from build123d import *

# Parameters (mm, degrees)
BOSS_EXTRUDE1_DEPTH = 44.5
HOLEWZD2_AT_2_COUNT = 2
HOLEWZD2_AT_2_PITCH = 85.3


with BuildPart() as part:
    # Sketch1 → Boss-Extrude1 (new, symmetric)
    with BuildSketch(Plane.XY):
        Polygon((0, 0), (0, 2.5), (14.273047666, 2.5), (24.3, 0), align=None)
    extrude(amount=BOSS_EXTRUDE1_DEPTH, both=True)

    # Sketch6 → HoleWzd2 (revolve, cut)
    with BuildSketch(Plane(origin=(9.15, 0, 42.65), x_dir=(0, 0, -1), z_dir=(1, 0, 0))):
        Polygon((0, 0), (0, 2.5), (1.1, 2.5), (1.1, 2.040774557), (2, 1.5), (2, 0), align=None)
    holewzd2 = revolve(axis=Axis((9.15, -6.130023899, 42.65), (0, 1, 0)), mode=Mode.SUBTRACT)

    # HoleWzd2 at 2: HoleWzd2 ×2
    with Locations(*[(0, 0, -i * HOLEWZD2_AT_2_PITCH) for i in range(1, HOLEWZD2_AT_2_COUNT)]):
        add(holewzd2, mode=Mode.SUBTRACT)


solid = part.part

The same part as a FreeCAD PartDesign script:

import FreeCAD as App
import Part
import Sketcher
Q = App.Units.Quantity


def add_polygon(sketch, points):
    """Adds a closed chain of lines whose ends are joined by coincident constraints."""
    first, n = sketch.GeometryCount, len(points)
    for a, b in zip(points, points[1:] + points[:1]):
        sketch.addGeometry(Part.LineSegment(App.Vector(*a, 0), App.Vector(*b, 0)), False)
    for i in range(n):
        sketch.addConstraint(Sketcher.Constraint("Coincident", first + i, 2, first + (i + 1) % n, 1))

doc = App.newDocument("Part")
body = doc.addObject("PartDesign::Body", "Body")

# Sketch on XY plane
sketch1 = body.newObject("Sketcher::SketchObject", "Sketch")
sketch1.AttachmentSupport = (doc.getObject("XY_Plane"), [""])
sketch1.MapMode = "FlatFace"
add_polygon(sketch1, [(0, 2.5), (0, 0), (24.3, 0), (14.3, 2.5)])  # lines 0-3
sketch1.addConstraint([
    Sketcher.Constraint("Vertical", 0),
    Sketcher.Constraint("Horizontal", 1),
    Sketcher.Constraint("Horizontal", 3),
    Sketcher.Constraint("Coincident", 0, 2, -1, 1),
    Sketcher.Constraint("Angle", 2, Q("166 deg")),
    Sketcher.Constraint("DistanceX", 1, 1, 1, 2, Q("24.3 mm")),
    Sketcher.Constraint("DistanceY", 0, 2, 0, 1, Q("2.5 mm")),
])
pad1 = body.newObject("PartDesign::Pad", "Pad")
pad1.Profile = sketch1
pad1.Length = 89
pad1.Midplane = True

# Sketch on YZ plane
sketch2 = body.newObject("Sketcher::SketchObject", "Sketch001")
sketch2.AttachmentSupport = (doc.getObject("YZ_Plane"), [""])
sketch2.MapMode = "FlatFace"
sketch2.AttachmentOffset = App.Placement(App.Vector(0, 0, 9.15), App.Rotation())
add_polygon(sketch2, [(2.5, 42.65), (0, 42.65), (0, 40.65), (1.5, 40.65), (2.04, 41.55), (2.5, 41.55)])  # lines 0-5
sketch2.addGeometry(Part.LineSegment(App.Vector(0, 42.65, 0), App.Vector(2.5, 42.65, 0)), True)  # axis
sketch2.addConstraint([
    Sketcher.Constraint("Horizontal", 0),
    Sketcher.Constraint("Vertical", 1),
    Sketcher.Constraint("Horizontal", 2),
    Sketcher.Constraint("Horizontal", 4),
    Sketcher.Constraint("Vertical", 5),
    Sketcher.Constraint("Horizontal", 6),
    Sketcher.Constraint("Coincident", 6, 1, 0, 2),
    Sketcher.Constraint("PointOnObject", 0, 2, -2),
    Sketcher.Constraint("Vertical", 4, 2, 6, 2),
    Sketcher.Constraint("DistanceY", 1, 2, 1, 1, Q("2 mm")),
    Sketcher.Constraint("Angle", 3, Q("59 deg")),
    Sketcher.Constraint("DistanceX", 0, 2, 0, 1, Q("2.5 mm")),
    Sketcher.Constraint("DistanceX", 2, 1, 2, 2, Q("1.5 mm")),
    Sketcher.Constraint("DistanceY", 5, 1, 5, 2, Q("1.1 mm")),
    Sketcher.Constraint("DistanceY", -1, 1, 0, 2, Q("42.65 mm")),
])
groove = body.newObject("PartDesign::Groove", "Groove")
groove.Profile = sketch2
groove.ReferenceAxis = (sketch2, ["Axis0"])
groove.Angle = 360
doc.recompute()

linearpattern = body.newObject("PartDesign::LinearPattern", "LinearPattern")
linearpattern.Originals = [groove]
linearpattern.Direction = (doc.getObject("Z_Axis"), [""])
linearpattern.Mode = "offset"
linearpattern.Offset = 85.3
linearpattern.Occurrences = 2
linearpattern.Reversed = True
body.Tip = linearpattern

doc.recompute()
